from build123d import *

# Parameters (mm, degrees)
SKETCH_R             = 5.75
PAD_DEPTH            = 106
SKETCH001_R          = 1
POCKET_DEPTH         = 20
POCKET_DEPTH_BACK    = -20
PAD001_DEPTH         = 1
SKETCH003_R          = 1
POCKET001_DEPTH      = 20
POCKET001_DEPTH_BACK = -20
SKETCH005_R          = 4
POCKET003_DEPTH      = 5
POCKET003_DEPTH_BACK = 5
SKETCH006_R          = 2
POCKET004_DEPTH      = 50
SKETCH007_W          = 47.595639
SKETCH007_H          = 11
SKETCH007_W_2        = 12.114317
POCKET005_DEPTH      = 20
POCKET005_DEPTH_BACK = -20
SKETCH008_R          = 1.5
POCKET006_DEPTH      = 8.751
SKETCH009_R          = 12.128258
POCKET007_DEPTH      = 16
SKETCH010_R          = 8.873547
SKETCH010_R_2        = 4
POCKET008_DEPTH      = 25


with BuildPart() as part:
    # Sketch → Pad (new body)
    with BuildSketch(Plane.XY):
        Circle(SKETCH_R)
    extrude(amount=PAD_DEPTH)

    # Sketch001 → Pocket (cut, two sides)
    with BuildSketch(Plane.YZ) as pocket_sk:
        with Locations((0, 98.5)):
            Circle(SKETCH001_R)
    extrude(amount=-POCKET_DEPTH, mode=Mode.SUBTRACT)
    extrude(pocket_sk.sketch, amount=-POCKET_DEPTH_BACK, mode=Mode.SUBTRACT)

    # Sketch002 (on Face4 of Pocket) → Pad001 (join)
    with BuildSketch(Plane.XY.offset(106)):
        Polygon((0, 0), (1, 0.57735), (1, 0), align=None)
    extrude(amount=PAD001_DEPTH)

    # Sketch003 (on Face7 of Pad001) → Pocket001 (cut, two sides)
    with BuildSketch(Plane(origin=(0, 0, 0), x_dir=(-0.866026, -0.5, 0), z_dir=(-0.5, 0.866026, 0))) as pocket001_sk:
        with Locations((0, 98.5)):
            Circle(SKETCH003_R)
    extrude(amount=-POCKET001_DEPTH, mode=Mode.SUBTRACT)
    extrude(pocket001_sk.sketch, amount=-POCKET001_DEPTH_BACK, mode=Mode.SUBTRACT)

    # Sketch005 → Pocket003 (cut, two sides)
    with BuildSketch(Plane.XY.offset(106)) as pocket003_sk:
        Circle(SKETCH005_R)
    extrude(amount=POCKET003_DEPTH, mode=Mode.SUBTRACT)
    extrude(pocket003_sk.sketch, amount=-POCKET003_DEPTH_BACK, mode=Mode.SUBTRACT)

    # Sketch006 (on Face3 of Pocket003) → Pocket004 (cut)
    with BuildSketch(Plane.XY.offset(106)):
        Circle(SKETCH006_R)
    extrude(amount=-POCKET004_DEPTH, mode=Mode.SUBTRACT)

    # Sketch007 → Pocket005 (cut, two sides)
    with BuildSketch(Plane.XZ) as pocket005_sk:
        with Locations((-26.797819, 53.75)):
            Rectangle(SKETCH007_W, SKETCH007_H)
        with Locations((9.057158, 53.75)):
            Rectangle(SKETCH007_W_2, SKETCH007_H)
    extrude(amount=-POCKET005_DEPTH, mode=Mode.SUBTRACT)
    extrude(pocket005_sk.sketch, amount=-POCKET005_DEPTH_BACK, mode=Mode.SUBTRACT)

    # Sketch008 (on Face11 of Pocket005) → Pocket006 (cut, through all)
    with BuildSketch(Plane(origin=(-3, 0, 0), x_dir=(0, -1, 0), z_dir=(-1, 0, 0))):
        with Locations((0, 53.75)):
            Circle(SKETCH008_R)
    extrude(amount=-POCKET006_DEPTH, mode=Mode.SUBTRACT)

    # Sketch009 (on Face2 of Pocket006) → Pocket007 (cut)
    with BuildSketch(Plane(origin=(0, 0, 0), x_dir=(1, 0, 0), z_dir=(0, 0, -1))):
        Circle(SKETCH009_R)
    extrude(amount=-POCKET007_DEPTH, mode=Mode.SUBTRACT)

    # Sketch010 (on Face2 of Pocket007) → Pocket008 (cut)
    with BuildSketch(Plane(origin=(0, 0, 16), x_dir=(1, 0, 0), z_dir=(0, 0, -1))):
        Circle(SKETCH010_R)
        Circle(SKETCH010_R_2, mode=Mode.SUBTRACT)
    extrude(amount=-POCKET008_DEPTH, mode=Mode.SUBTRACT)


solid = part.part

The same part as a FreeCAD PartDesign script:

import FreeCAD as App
import Part
import Sketcher
from FreeCAD import Vector
Q = App.Units.Quantity


def add_polygon(sketch, points):
    """Adds a closed chain of lines whose ends are joined by coincident constraints."""
    first, n = sketch.GeometryCount, len(points)
    for a, b in zip(points, points[1:] + points[:1]):
        sketch.addGeometry(Part.LineSegment(App.Vector(*a, 0), App.Vector(*b, 0)), False)
    for i in range(n):
        sketch.addConstraint(Sketcher.Constraint("Coincident", first + i, 2, first + (i + 1) % n, 1))

doc = App.newDocument("Part")
body = doc.addObject("PartDesign::Body", "Body")

# Sketch on XY plane
sketch1 = body.newObject("Sketcher::SketchObject", "Sketch")
sketch1.AttachmentSupport = (doc.getObject("XY_Plane"), [""])
sketch1.MapMode = "FlatFace"
sketch1.addGeometry(Part.Circle(Vector(0, 0, 0), Vector(0, 0, 1), 6), False)
sketch1.addConstraint(Sketcher.Constraint("Coincident", 0, 3, -1, 1))
sketch1.addConstraint(Sketcher.Constraint("Diameter", 0, 11.5))
pad1 = body.newObject("PartDesign::Pad", "Pad")
pad1.Profile = sketch1
pad1.Length = 106

# Sketch on YZ plane
sketch2 = body.newObject("Sketcher::SketchObject", "Sketch001")
sketch2.AttachmentSupport = (doc.getObject("YZ_Plane"), [""])
sketch2.MapMode = "FlatFace"
sketch2.addGeometry(Part.Circle(Vector(0, 98.5, 0), Vector(0, 0, 1), 1), False)
sketch2.addConstraint(Sketcher.Constraint("PointOnObject", 0, 3, -2))
sketch2.addConstraint(Sketcher.Constraint("Diameter", 0, 2.0))
sketch2.addConstraint(Sketcher.Constraint("DistanceY", -1, 1, 0, 3, 98.5))
pocket1 = body.newObject("PartDesign::Pocket", "Pocket")
pocket1.Profile = sketch2
pocket1.Type = "ThroughAll"
pocket1.Midplane = True

# Sketch on XY plane
sketch3 = body.newObject("Sketcher::SketchObject", "Sketch002")
sketch3.AttachmentSupport = (doc.getObject("XY_Plane"), [""])
sketch3.MapMode = "FlatFace"
sketch3.AttachmentOffset = App.Placement(Vector(0, 0, 106), App.Rotation())
add_polygon(sketch3, [(1, 0.6), (0, 0), (1, 0)])  # lines 0-2
sketch3.addConstraint(Sketcher.Constraint("Horizontal", 1))
sketch3.addConstraint(Sketcher.Constraint("Vertical", 2))
sketch3.addConstraint(Sketcher.Constraint("Coincident", 0, 2, -1, 1))
sketch3.addConstraint(Sketcher.Constraint("DistanceX", 1, 1, 1, 2, 1.0))
sketch3.addConstraint(Sketcher.Constraint("Angle", 0, Q("-150.000012 deg")))
pad2 = body.newObject("PartDesign::Pad", "Pad001")
pad2.Profile = sketch3
pad2.Length = 1

# Sketch on an angled plane
sketch4 = body.newObject("Sketcher::SketchObject", "Sketch003")
sketch4.Placement = App.Placement(Vector(0, 0, 0), App.Rotation(Vector(-0.866025553, -0.499999742, 0), Vector(0, 0, 1), Vector(-0.499999742, 0.866025553, 0), "ZXY"))
sketch4.addGeometry(Part.Circle(Vector(0, 98.5, 0), Vector(0, 0, 1), 1), False)
sketch4.addConstraint(Sketcher.Constraint("PointOnObject", 0, 3, -2))
sketch4.addConstraint(Sketcher.Constraint("Diameter", 0, 2.0))
sketch4.addConstraint(Sketcher.Constraint("DistanceY", -1, 1, 0, 3, 98.5))
pocket2 = body.newObject("PartDesign::Pocket", "Pocket001")
pocket2.Profile = sketch4
pocket2.Type = "ThroughAll"
pocket2.Midplane = True

# Sketch on XY plane
sketch5 = body.newObject("Sketcher::SketchObject", "Sketch004")
sketch5.AttachmentSupport = (doc.getObject("XY_Plane"), [""])
sketch5.MapMode = "FlatFace"
sketch5.AttachmentOffset = App.Placement(Vector(0, 0, 106), App.Rotation())
sketch5.addGeometry(Part.Circle(Vector(0, 0, 0), Vector(0, 0, 1), 4), False)
sketch5.addConstraint(Sketcher.Constraint("Coincident", 0, 3, -1, 1))
sketch5.addConstraint(Sketcher.Constraint("Diameter", 0, 8.0))
pocket3 = body.newObject("PartDesign::Pocket", "Pocket002")
pocket3.Profile = sketch5
pocket3.Type = "TwoLengths"
pocket3.Length = 5
pocket3.Length2 = 5
pocket3.Reversed = True

# Sketch on XY plane
sketch6 = body.newObject("Sketcher::SketchObject", "Sketch005")
sketch6.AttachmentSupport = (doc.getObject("XY_Plane"), [""])
sketch6.MapMode = "FlatFace"
sketch6.AttachmentOffset = App.Placement(Vector(0, 0, 106), App.Rotation())
sketch6.addGeometry(Part.Circle(Vector(0, 0, 0), Vector(0, 0, 1), 2), False)
sketch6.addConstraint(Sketcher.Constraint("Coincident", 0, 3, -1, 1))
sketch6.addConstraint(Sketcher.Constraint("Diameter", 0, 4.0))
pocket4 = body.newObject("PartDesign::Pocket", "Pocket003")
pocket4.Profile = sketch6
pocket4.Length = 50

# Sketch on XZ plane
sketch7 = body.newObject("Sketcher::SketchObject", "Sketch006")
sketch7.AttachmentSupport = (doc.getObject("XZ_Plane"), [""])
sketch7.MapMode = "FlatFace"
add_polygon(sketch7, [(-51, 59), (-51, 48), (-3, 48), (-3, 59)])  # lines 0-3
add_polygon(sketch7, [(3, 59), (3, 48), (15, 48), (15, 59)])  # lines 4-7
sketch7.addConstraint(Sketcher.Constraint("Vertical", 0))
sketch7.addConstraint(Sketcher.Constraint("Horizontal", 1))
sketch7.addConstraint(Sketcher.Constraint("Vertical", 2))
sketch7.addConstraint(Sketcher.Constraint("Horizontal", 3))
sketch7.addConstraint(Sketcher.Constraint("Vertical", 4))
sketch7.addConstraint(Sketcher.Constraint("Horizontal", 5))
sketch7.addConstraint(Sketcher.Constraint("Vertical", 6))
sketch7.addConstraint(Sketcher.Constraint("Horizontal", 7))
sketch7.addConstraint(Sketcher.Constraint("Symmetric", 1, 2, 4, 2, -2))
sketch7.addConstraint(Sketcher.Constraint("Horizontal", 3, 2, 6, 2))
sketch7.addConstraint(Sketcher.Constraint("DistanceY", 0, 2, 0, 1, 11.0))
sketch7.addConstraint(Sketcher.Constraint("DistanceX", 1, 2, -1, 1, 2.999999))
sketch7.addConstraint(Sketcher.Constraint("DistanceY", -1, 1, 0, 2, 48.25))
sketch7.addConstraint(Sketcher.Constraint("DistanceX", 1, 1, 1, 2, 47.595639))
sketch7.addConstraint(Sketcher.Constraint("DistanceX", 5, 1, 5, 2, 12.114317))
pocket5 = body.newObject("PartDesign::Pocket", "Pocket004")
pocket5.Profile = sketch7
pocket5.Type = "ThroughAll"
pocket5.Midplane = True

# Sketch on YZ plane
sketch8 = body.newObject("Sketcher::SketchObject", "Sketch007")
sketch8.AttachmentSupport = (doc.getObject("YZ_Plane"), [""])
sketch8.MapMode = "FlatFace"
sketch8.AttachmentOffset = App.Placement(Vector(0, 0, -3), App.Rotation())
sketch8.addGeometry(Part.Circle(Vector(0, 53.8, 0), Vector(0, 0, 1), 1.5), False)
sketch8.addConstraint(Sketcher.Constraint("PointOnObject", 0, 3, -2))
sketch8.addConstraint(Sketcher.Constraint("Diameter", 0, 3.0))
sketch8.addConstraint(Sketcher.Constraint("DistanceY", -1, 1, 0, 3, 53.75))
pocket6 = body.newObject("PartDesign::Pocket", "Pocket005")
pocket6.Profile = sketch8
pocket6.Type = "ThroughAll"
pocket6.Reversed = True

# Sketch on XY plane
sketch9 = body.newObject("Sketcher::SketchObject", "Sketch008")
sketch9.AttachmentSupport = (doc.getObject("XY_Plane"), [""])
sketch9.MapMode = "FlatFace"
sketch9.addGeometry(Part.Circle(Vector(0, 0, 0), Vector(0, 0, 1), 12), False)
sketch9.addConstraint(Sketcher.Constraint("Coincident", 0, 3, -1, 1))
sketch9.addConstraint(Sketcher.Constraint("Diameter", 0, 24.256516))
pocket7 = body.newObject("PartDesign::Pocket", "Pocket006")
pocket7.Profile = sketch9
pocket7.Length = 16
pocket7.Reversed = True

# Sketch on XY plane
sketch10 = body.newObject("Sketcher::SketchObject", "Sketch009")
sketch10.AttachmentSupport = (doc.getObject("XY_Plane"), [""])
sketch10.MapMode = "FlatFace"
sketch10.AttachmentOffset = App.Placement(Vector(0, 0, 16), App.Rotation())
sketch10.addGeometry(Part.Circle(Vector(0, 0, 0), Vector(0, 0, 1), 8.9), False)
sketch10.addGeometry(Part.Circle(Vector(0, 0, 0), Vector(0, 0, 1), 4), False)
sketch10.addConstraint(Sketcher.Constraint("Coincident", 0, 3, -1, 1))
sketch10.addConstraint(Sketcher.Constraint("Coincident", 1, 3, -1, 1))
sketch10.addConstraint(Sketcher.Constraint("Diameter", 1, 8.0))
sketch10.addConstraint(Sketcher.Constraint("Diameter", 0, 17.747094))
pocket8 = body.newObject("PartDesign::Pocket", "Pocket007")
pocket8.Profile = sketch10
pocket8.Length = 25
pocket8.Reversed = True

doc.recompute()
